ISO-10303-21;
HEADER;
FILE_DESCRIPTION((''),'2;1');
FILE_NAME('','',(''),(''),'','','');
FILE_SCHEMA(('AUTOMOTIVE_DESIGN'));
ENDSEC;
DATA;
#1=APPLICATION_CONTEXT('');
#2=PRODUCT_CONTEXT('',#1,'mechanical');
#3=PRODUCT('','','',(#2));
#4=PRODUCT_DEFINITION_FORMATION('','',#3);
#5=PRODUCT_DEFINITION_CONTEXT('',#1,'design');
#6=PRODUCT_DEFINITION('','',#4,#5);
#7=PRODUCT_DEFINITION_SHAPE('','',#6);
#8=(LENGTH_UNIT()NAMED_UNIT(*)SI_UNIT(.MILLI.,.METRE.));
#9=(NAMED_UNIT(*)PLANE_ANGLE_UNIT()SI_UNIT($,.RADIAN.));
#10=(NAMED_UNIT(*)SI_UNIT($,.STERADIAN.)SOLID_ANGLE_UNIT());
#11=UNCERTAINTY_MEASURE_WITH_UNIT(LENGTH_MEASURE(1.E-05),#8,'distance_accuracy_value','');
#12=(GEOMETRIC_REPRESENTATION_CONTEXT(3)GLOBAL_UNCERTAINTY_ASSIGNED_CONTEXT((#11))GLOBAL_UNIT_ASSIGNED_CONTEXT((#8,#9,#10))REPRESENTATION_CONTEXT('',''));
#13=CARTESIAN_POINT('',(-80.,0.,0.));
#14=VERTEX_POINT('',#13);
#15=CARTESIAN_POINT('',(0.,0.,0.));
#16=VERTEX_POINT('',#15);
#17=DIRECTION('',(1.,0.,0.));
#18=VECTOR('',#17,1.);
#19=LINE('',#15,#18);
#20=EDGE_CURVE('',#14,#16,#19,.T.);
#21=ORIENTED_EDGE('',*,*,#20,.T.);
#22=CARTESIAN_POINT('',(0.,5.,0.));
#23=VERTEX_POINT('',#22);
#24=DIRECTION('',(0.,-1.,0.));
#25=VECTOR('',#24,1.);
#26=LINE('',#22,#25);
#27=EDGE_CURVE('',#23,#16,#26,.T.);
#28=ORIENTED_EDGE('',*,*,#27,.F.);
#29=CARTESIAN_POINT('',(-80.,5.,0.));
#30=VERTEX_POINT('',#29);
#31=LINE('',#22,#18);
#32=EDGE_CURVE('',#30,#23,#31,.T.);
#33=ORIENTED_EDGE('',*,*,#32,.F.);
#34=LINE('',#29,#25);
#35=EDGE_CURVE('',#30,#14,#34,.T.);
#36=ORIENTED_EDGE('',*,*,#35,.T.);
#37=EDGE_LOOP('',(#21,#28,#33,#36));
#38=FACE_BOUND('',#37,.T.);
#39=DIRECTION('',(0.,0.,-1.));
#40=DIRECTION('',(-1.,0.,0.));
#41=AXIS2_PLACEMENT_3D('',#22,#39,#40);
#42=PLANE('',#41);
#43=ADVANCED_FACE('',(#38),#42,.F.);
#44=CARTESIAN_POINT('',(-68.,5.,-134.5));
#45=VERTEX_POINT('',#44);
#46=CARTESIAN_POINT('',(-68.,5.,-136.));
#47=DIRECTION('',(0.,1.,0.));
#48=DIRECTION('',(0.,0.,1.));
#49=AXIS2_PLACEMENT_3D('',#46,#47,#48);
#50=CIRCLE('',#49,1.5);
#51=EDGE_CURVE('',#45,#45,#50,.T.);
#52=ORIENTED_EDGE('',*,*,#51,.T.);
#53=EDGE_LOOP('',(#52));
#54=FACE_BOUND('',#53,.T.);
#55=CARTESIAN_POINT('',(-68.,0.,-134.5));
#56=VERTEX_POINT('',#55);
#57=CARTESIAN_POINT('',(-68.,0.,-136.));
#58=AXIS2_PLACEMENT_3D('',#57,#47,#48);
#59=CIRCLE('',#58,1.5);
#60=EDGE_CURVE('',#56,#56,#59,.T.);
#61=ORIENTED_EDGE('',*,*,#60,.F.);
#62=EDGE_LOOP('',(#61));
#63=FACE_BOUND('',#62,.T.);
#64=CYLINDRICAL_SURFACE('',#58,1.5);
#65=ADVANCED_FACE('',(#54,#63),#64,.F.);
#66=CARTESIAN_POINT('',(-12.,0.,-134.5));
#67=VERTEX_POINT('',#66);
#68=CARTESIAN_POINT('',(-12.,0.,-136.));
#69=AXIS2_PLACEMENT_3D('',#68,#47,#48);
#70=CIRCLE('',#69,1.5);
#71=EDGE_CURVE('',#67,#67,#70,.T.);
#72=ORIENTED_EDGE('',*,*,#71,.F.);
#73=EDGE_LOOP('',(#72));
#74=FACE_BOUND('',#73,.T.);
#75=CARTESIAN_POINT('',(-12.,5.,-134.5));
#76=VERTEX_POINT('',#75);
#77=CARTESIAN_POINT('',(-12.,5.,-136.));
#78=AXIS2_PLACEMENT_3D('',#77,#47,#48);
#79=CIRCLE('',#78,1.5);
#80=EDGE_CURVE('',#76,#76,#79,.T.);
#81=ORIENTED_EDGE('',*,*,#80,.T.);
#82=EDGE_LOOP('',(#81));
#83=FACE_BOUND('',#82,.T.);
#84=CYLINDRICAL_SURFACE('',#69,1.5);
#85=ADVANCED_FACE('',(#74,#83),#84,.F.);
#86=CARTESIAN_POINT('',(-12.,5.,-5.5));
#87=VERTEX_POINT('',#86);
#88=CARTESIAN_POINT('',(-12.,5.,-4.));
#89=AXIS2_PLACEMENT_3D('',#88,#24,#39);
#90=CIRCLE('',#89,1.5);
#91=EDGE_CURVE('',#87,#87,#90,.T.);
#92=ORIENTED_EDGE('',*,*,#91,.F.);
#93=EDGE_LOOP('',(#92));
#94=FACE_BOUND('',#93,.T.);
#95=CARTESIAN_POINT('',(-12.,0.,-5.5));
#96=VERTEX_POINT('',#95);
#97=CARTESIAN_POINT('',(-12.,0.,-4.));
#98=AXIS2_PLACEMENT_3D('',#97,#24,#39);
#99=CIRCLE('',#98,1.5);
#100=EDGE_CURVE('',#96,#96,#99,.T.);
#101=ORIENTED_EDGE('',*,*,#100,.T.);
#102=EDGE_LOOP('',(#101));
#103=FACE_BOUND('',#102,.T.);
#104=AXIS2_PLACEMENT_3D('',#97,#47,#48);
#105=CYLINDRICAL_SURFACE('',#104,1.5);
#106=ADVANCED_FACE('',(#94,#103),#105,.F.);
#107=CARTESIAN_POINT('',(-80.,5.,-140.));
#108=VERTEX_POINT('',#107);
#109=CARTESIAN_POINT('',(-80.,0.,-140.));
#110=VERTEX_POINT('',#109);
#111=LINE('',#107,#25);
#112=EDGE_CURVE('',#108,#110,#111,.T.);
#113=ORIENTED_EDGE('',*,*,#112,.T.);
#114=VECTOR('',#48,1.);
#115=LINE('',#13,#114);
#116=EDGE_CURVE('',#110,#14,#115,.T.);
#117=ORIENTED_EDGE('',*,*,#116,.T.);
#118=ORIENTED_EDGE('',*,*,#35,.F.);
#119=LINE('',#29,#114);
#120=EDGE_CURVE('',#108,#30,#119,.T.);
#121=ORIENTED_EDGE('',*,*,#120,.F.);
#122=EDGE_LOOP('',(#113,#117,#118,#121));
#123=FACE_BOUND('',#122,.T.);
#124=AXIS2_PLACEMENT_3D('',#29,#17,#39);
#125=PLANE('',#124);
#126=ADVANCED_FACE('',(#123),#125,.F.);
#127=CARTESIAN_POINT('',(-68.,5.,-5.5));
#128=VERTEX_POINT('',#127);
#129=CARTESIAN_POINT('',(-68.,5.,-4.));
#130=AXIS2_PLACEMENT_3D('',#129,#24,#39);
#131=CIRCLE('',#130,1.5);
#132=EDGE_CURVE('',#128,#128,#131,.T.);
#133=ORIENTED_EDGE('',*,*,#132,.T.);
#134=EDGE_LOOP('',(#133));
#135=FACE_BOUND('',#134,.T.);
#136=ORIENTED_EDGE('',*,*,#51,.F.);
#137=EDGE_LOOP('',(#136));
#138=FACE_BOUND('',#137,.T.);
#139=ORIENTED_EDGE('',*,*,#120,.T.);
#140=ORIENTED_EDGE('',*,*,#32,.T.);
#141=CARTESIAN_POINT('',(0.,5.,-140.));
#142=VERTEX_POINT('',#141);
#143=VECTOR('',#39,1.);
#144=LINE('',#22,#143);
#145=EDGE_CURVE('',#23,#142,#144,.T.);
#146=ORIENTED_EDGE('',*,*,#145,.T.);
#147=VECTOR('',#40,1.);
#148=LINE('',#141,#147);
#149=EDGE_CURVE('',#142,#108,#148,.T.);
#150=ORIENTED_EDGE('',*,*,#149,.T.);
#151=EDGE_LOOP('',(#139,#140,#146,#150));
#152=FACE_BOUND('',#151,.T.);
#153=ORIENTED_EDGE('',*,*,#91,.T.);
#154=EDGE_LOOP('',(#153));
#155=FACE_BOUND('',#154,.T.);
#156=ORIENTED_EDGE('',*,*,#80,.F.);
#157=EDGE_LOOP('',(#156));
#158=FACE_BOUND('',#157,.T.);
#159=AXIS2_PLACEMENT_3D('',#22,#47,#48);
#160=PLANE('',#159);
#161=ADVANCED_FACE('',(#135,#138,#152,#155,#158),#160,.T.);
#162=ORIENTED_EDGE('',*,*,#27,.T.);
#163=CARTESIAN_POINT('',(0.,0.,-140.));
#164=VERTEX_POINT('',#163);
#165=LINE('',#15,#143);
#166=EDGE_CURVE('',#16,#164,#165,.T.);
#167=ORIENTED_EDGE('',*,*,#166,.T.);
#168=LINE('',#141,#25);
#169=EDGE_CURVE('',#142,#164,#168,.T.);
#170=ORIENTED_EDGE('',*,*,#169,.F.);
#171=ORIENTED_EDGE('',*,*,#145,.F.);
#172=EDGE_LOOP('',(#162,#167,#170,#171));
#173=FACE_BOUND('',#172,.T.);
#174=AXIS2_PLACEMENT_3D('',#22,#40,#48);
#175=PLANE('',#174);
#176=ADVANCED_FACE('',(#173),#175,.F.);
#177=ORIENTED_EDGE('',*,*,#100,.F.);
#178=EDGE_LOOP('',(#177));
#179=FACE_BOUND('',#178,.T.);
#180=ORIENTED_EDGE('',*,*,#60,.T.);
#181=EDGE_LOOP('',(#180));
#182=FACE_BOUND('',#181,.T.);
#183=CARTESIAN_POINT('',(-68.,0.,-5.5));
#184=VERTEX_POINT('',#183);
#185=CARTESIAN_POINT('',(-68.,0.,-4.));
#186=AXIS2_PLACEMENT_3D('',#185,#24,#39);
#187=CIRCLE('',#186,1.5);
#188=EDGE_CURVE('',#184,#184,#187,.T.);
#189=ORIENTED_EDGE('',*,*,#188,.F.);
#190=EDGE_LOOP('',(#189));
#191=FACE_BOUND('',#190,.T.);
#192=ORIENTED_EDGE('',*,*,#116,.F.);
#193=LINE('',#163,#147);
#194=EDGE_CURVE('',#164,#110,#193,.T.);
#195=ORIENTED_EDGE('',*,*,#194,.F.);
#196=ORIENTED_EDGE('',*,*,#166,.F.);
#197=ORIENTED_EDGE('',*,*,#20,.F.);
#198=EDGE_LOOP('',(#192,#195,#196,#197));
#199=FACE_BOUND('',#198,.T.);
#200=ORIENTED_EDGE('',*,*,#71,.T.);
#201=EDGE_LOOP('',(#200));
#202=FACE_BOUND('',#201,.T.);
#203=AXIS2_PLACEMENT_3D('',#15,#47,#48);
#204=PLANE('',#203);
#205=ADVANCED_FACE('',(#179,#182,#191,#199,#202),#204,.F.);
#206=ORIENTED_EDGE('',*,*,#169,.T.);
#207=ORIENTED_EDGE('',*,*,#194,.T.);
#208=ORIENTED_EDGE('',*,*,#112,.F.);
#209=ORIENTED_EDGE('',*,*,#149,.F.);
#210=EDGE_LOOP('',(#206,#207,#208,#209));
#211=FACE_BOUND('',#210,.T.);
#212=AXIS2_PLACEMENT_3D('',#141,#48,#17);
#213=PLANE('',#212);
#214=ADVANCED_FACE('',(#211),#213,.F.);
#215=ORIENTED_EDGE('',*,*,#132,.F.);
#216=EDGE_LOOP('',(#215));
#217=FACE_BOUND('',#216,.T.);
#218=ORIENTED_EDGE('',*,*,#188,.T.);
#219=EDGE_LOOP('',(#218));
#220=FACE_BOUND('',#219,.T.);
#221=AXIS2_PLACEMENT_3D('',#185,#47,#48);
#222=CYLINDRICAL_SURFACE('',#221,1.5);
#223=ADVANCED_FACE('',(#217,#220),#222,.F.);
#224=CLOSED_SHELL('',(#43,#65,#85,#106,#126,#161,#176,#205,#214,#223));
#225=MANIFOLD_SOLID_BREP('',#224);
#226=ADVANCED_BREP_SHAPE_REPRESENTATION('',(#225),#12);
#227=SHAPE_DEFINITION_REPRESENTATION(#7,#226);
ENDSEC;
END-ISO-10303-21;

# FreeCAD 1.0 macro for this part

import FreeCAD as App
import Part
import Sketcher

V = App.Vector
Q = App.Units.Quantity

doc = App.newDocument("Part")
body = doc.addObject("PartDesign::Body", "Body")

# Sketch on XZ plane
sketch1 = body.newObject("Sketcher::SketchObject", "Sketch")
sketch1.AttachmentSupport = (doc.getObject("XZ_Plane"), [""])
sketch1.MapMode = "FlatFace"
sketch1.addGeometry([
    Part.LineSegment(V(-80, -140, 0), V(-80, 0, 0)),
    Part.LineSegment(V(-80, 0, 0), V(0, 0, 0)),
    Part.LineSegment(V(0, 0, 0), V(0, -140, 0)),
    Part.LineSegment(V(0, -140, 0), V(-80, -140, 0)),
], False)
sketch1.addConstraint([
    Sketcher.Constraint("Coincident", 0, 2, 1, 1),
    Sketcher.Constraint("Coincident", 1, 2, 2, 1),
    Sketcher.Constraint("Coincident", 2, 2, 3, 1),
    Sketcher.Constraint("Coincident", 3, 2, 0, 1),
    Sketcher.Constraint("Vertical", 0),
    Sketcher.Constraint("Horizontal", 1),
    Sketcher.Constraint("Vertical", 2),
    Sketcher.Constraint("Horizontal", 3),
    Sketcher.Constraint("Coincident", 1, 2, -1, 1),
    Sketcher.Constraint("DistanceX", 1, 1, 1, 2, Q("80 mm")),
    Sketcher.Constraint("DistanceY", 0, 1, 0, 2, Q("140 mm")),
])
pad1 = body.newObject("PartDesign::Pad", "Pad")
pad1.Profile = sketch1
pad1.Length = 5
pad1.Reversed = True

# Sketch on XZ plane
sketch2 = body.newObject("Sketcher::SketchObject", "Sketch001")
sketch2.AttachmentSupport = (doc.getObject("XZ_Plane"), [""])
sketch2.MapMode = "FlatFace"
sketch2.AttachmentOffset = App.Placement(V(0, 0, -5), App.Rotation())
sketch2.addGeometry(Part.Circle(V(-68, -136, 0), V(0, 0, 1), 1.5), False)
sketch2.addConstraint([
    Sketcher.Constraint("Diameter", 0, Q("3 mm")),
    Sketcher.Constraint("DistanceX", 0, 3, -1, 1, Q("68 mm")),
    Sketcher.Constraint("DistanceY", 0, 3, -1, 1, Q("136 mm")),
])
pocket1 = body.newObject("PartDesign::Pocket", "Pocket")
pocket1.Profile = sketch2
pocket1.Type = "ThroughAll"
pocket1.Reversed = True

# Sketch on XZ plane
sketch3 = body.newObject("Sketcher::SketchObject", "Sketch002")
sketch3.AttachmentSupport = (doc.getObject("XZ_Plane"), [""])
sketch3.MapMode = "FlatFace"
sketch3.AttachmentOffset = App.Placement(V(0, 0, -5), App.Rotation())
sketch3.addGeometry(Part.Circle(V(-12, -136, 0), V(0, 0, 1), 1.5), False)
sketch3.addConstraint([
    Sketcher.Constraint("Diameter", 0, Q("3 mm")),
    Sketcher.Constraint("DistanceX", 0, 3, -1, 1, Q("12 mm")),
    Sketcher.Constraint("DistanceY", 0, 3, -1, 1, Q("136 mm")),
])
pocket2 = body.newObject("PartDesign::Pocket", "Pocket001")
pocket2.Profile = sketch3
pocket2.Type = "ThroughAll"
pocket2.Reversed = True
doc.recompute()

datumplane = body.newObject("PartDesign::Plane", "DatumPlane")
datumplane.AttachmentSupport = (doc.getObject("XY_Plane"), [""])
datumplane.MapMode = "FlatFace"
datumplane.AttachmentOffset = App.Placement(V(0, 0, -70), App.Rotation())
mirrored = body.newObject("PartDesign::Mirrored", "Mirrored")
mirrored.Originals = [pocket1, pocket2]
mirrored.MirrorPlane = (datumplane, [""])
body.Tip = mirrored

doc.recompute()
